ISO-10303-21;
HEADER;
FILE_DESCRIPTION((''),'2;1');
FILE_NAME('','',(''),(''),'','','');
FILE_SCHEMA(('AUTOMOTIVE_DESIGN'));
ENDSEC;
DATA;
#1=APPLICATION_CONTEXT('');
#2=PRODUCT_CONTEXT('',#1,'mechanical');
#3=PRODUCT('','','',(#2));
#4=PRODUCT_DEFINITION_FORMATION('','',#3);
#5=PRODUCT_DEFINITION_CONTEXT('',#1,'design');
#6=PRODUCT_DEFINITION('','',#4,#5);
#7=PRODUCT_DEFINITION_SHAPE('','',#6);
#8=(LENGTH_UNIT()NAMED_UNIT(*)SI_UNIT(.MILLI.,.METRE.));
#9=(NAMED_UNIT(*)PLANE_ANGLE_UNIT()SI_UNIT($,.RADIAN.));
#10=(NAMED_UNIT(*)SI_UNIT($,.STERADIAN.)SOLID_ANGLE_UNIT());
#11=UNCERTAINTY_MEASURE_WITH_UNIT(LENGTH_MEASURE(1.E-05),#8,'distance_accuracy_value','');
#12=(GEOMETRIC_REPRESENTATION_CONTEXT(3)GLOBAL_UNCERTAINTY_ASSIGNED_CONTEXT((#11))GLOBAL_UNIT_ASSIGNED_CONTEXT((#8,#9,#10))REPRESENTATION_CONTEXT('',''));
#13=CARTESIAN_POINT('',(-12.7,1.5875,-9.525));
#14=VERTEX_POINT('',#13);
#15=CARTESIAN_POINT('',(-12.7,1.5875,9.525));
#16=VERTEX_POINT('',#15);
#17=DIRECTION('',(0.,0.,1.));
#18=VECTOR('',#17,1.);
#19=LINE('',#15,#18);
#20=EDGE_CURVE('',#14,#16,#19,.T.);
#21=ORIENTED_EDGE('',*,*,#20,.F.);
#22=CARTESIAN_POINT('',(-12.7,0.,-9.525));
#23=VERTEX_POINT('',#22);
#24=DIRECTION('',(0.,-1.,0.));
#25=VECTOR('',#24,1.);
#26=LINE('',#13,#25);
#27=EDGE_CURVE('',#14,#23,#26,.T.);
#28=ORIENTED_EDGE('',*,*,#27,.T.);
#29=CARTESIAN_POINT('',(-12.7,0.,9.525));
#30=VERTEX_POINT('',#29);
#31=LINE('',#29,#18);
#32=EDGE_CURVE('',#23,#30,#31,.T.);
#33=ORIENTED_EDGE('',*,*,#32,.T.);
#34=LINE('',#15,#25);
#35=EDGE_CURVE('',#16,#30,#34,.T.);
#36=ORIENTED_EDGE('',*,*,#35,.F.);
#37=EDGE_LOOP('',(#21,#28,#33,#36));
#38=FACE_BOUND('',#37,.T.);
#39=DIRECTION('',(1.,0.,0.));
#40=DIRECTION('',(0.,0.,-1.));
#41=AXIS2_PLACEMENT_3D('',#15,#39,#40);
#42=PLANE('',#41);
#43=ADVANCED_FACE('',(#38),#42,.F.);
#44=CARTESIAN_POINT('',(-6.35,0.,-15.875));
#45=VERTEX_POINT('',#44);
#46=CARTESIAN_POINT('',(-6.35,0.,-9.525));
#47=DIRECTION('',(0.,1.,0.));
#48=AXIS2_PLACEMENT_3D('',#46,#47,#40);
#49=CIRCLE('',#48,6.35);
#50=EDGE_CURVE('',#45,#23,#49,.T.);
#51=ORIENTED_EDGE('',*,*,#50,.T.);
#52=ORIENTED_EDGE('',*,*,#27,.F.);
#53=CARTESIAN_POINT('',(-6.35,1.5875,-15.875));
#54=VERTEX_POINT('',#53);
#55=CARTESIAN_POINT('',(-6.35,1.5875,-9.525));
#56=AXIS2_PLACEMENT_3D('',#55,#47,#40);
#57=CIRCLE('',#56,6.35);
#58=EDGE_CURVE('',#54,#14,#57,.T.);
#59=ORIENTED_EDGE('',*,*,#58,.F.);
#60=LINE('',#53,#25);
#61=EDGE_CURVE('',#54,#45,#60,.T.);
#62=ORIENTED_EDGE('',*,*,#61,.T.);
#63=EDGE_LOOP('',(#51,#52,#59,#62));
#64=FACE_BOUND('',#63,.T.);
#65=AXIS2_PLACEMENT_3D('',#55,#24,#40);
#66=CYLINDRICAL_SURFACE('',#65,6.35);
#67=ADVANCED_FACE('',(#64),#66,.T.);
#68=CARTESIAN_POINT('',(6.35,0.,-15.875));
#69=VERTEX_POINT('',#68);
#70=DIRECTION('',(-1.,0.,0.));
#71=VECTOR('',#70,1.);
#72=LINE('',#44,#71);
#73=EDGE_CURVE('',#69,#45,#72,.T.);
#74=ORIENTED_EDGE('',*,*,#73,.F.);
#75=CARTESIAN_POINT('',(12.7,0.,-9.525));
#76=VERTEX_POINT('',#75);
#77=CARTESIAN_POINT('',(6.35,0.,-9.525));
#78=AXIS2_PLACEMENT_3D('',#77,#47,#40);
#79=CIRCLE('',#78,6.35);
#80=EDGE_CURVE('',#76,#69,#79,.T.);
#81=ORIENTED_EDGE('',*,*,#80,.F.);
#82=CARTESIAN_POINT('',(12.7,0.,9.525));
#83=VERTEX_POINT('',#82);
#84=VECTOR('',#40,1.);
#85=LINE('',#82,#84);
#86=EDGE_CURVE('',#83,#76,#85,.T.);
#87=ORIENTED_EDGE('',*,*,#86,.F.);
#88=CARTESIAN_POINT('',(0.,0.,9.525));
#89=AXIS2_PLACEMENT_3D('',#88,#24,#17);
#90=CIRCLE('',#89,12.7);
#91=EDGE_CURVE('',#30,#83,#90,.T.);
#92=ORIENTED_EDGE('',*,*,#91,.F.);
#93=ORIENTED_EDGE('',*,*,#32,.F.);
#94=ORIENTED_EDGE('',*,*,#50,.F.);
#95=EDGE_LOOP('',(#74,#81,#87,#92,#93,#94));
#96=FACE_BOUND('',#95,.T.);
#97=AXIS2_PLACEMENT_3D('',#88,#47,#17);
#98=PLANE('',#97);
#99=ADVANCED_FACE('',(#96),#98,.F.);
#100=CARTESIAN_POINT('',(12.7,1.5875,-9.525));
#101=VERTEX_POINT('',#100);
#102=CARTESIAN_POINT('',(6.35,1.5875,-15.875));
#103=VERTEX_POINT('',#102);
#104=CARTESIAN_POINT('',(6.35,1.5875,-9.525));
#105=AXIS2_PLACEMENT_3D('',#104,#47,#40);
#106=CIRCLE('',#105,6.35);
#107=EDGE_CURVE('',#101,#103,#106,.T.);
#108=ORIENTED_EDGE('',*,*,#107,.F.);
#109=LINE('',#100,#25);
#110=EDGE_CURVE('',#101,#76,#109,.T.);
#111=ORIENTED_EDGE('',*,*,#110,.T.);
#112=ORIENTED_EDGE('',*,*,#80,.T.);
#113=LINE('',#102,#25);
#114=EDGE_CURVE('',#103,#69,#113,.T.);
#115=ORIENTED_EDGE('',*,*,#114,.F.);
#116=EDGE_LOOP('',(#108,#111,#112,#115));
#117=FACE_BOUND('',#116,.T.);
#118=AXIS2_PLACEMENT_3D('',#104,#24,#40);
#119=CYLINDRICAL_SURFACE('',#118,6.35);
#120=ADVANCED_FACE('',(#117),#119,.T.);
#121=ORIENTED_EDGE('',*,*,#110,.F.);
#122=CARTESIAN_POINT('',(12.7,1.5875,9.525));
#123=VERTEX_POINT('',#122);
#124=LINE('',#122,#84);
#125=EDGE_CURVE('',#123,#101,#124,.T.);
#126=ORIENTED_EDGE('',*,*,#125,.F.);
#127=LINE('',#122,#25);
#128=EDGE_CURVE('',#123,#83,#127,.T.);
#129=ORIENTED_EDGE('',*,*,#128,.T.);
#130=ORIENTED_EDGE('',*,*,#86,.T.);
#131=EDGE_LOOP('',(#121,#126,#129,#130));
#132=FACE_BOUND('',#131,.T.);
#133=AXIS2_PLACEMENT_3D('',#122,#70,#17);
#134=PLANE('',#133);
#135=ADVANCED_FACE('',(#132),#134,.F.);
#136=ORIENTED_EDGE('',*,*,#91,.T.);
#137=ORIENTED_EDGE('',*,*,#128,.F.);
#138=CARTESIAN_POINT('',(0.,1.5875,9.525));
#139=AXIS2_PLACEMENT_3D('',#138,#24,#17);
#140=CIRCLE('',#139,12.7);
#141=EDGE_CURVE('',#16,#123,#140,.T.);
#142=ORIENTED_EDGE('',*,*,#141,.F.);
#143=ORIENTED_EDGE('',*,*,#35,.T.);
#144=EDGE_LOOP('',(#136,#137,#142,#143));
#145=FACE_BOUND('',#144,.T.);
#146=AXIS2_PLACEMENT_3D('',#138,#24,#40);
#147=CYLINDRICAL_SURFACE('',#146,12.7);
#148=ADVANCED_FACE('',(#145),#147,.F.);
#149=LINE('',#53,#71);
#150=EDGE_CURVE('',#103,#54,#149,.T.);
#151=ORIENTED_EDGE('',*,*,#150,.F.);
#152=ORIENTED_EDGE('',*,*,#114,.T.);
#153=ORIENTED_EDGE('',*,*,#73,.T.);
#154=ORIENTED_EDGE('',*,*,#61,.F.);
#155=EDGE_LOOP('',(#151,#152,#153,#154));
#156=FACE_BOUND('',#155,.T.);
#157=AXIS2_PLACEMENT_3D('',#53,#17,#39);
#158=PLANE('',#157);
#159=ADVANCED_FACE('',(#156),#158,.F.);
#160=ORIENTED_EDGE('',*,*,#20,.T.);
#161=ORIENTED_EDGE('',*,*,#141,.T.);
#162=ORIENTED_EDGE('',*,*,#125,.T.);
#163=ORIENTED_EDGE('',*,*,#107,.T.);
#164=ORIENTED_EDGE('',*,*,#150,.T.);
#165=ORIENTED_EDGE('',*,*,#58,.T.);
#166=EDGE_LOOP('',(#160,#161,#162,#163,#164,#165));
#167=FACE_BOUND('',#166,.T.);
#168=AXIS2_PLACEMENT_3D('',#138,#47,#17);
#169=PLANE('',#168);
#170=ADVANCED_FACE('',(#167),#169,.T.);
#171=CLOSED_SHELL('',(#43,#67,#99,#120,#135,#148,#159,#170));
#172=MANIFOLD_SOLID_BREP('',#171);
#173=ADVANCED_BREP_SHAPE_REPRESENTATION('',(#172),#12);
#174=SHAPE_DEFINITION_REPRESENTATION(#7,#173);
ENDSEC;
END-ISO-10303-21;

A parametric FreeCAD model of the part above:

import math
import FreeCAD as App
import Part
import Sketcher

V = App.Vector
Q = App.Units.Quantity

doc = App.newDocument("Part")
body = doc.addObject("PartDesign::Body", "Body")

# Sketch on XZ plane
sketch1 = body.newObject("Sketcher::SketchObject", "Sketch")
sketch1.AttachmentSupport = (doc.getObject("XZ_Plane"), [""])
sketch1.MapMode = "FlatFace"
sketch1.addGeometry(Part.LineSegment(V(-13, -10, 0), V(-13, 10, 0)), False)
sketch1.addGeometry(Part.ArcOfCircle(Part.Circle(V(0, 10, 0), V(0, 0, 1), 13), math.radians(180), math.radians(360)), False)
sketch1.addGeometry(Part.LineSegment(V(13, 10, 0), V(13, -10, 0)), False)
sketch1.addGeometry(Part.ArcOfCircle(Part.Circle(V(6, -10, 0), V(0, 0, 1), 6), math.radians(-90), math.radians(0)), False)
sketch1.addGeometry(Part.LineSegment(V(6, -16, 0), V(-6, -16, 0)), False)
sketch1.addGeometry(Part.ArcOfCircle(Part.Circle(V(-6, -10, 0), V(0, 0, 1), 6), math.radians(180), math.radians(270)), False)
sketch1.addConstraint(Sketcher.Constraint("Tangent", 0, 2, 1, 1))
sketch1.addConstraint(Sketcher.Constraint("Tangent", 1, 2, 2, 1))
sketch1.addConstraint(Sketcher.Constraint("Tangent", 2, 2, 3, 2))
sketch1.addConstraint(Sketcher.Constraint("Tangent", 3, 1, 4, 1))
sketch1.addConstraint(Sketcher.Constraint("Tangent", 4, 2, 5, 2))
sketch1.addConstraint(Sketcher.Constraint("Tangent", 5, 1, 0, 1))
sketch1.addConstraint(Sketcher.Constraint("Vertical", 0))
sketch1.addConstraint(Sketcher.Constraint("Vertical", 2))
sketch1.addConstraint(Sketcher.Constraint("Horizontal", 4))
sketch1.addConstraint(Sketcher.Constraint("Equal", 3, 5))
sketch1.addConstraint(Sketcher.Constraint("Symmetric", 0, 2, 2, 2, -1, 1))
sketch1.addConstraint(Sketcher.Constraint("Radius", 1, Q("0.5 in")))
sketch1.addConstraint(Sketcher.Constraint("Radius", 3, Q("0.25 in")))
sketch1.addConstraint(Sketcher.Constraint("DistanceY", 3, 1, 1, 3, Q("1 in")))
pad1 = body.newObject("PartDesign::Pad", "Pad")
pad1.Profile = sketch1
pad1.Length = Q("0.0625 in")
pad1.Reversed = True

doc.recompute()
